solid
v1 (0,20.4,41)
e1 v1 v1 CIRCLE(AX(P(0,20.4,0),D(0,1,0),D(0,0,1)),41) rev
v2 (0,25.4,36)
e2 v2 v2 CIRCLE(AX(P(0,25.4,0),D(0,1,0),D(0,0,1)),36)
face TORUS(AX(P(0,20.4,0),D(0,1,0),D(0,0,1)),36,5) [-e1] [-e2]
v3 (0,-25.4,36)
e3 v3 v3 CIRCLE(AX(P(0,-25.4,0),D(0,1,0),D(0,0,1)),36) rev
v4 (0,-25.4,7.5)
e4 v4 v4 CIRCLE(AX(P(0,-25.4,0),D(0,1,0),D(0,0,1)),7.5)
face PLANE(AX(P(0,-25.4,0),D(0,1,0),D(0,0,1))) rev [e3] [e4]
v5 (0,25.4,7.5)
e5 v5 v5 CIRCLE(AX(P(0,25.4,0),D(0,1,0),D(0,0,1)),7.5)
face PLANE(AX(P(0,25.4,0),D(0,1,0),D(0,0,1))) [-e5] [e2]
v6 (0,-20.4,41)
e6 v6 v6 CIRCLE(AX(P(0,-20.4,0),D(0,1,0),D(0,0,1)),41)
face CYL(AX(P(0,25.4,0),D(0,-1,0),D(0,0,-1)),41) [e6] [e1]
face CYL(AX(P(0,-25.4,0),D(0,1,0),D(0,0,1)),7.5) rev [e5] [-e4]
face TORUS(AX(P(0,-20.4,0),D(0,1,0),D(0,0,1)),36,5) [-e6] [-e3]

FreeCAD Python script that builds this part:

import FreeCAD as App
import Part
import Sketcher

V = App.Vector


def edges_at(feature, points):
    """Names of the edges that pass closest to the given points."""
    edges = feature.Shape.Edges
    near = lambda p: min(range(len(edges)), key=lambda i: edges[i].distToShape(Part.Vertex(*p))[0])
    return sorted({f"Edge{near(p) + 1}" for p in points})

doc = App.newDocument("Part")
body = doc.addObject("PartDesign::Body", "Body")

# Sketch on XZ plane
sketch1 = body.newObject("Sketcher::SketchObject", "Sketch")
sketch1.AttachmentSupport = (doc.getObject("XZ_Plane"), [""])
sketch1.MapMode = "FlatFace"
sketch1.addGeometry(Part.Circle(V(0, 0, 0), V(0, 0, 1), 41), False)
sketch1.addConstraint(Sketcher.Constraint("Coincident", 0, 3, -1, 1))
sketch1.addConstraint(Sketcher.Constraint("Diameter", 0, 82.0))
pad1 = body.newObject("PartDesign::Pad", "Pad")
pad1.Profile = sketch1
pad1.Length = 50.8
pad1.Midplane = True
doc.recompute()

fillet = body.newObject("PartDesign::Fillet", "Fillet")
fillet.Base = (pad1, edges_at(pad1, [(0, -25.4, -41), (0, 25.4, -41)]))
fillet.Radius = 5

# Sketch on XZ plane
sketch2 = body.newObject("Sketcher::SketchObject", "Sketch001")
sketch2.AttachmentSupport = (doc.getObject("XZ_Plane"), [""])
sketch2.MapMode = "FlatFace"
sketch2.AttachmentOffset = App.Placement(V(0, 0, -25.4), App.Rotation())
sketch2.addGeometry(Part.Circle(V(0, 0, 0), V(0, 0, 1), 8), False)
sketch2.addConstraint(Sketcher.Constraint("Coincident", 0, 3, -1, 1))
sketch2.addConstraint(Sketcher.Constraint("Diameter", 0, 15.0))
pocket1 = body.newObject("PartDesign::Pocket", "Pocket")
pocket1.Profile = sketch2
pocket1.Type = "ThroughAll"
pocket1.Midplane = True

doc.recompute()
